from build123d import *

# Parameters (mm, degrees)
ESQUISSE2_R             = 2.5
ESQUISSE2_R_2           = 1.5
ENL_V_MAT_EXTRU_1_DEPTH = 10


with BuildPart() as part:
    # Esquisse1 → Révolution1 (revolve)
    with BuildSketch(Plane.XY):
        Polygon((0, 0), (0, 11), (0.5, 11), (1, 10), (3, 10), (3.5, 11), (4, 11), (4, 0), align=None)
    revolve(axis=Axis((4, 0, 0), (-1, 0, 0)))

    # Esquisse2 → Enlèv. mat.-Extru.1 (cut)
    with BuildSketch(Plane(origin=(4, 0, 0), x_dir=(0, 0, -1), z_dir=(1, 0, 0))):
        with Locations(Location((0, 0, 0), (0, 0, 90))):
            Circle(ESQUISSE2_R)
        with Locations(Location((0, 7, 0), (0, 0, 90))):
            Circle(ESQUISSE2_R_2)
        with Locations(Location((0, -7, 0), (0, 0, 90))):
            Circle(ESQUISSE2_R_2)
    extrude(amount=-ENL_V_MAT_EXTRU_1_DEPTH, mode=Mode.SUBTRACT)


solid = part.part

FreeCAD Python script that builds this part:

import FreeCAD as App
import Part
import Sketcher

V = App.Vector


def add_polygon(sketch, points):
    """Adds a closed chain of lines whose ends are joined by coincident constraints."""
    first, n = sketch.GeometryCount, len(points)
    for a, b in zip(points, points[1:] + points[:1]):
        sketch.addGeometry(Part.LineSegment(App.Vector(*a, 0), App.Vector(*b, 0)), False)
    for i in range(n):
        sketch.addConstraint(Sketcher.Constraint("Coincident", first + i, 2, first + (i + 1) % n, 1))

doc = App.newDocument("Part")
body = doc.addObject("PartDesign::Body", "Body")

sketch1 = body.newObject("Sketcher::SketchObject", "Sketch")
sketch1.AttachmentSupport = (doc.getObject("XY_Plane"), [""])
sketch1.MapMode = "FlatFace"
add_polygon(sketch1, [(0, 11), (0, 0), (4, 0), (4, 11), (3.5, 11), (3, 10), (1, 10), (0.5, 11)])
sketch1.addConstraint([
    Sketcher.Constraint("Vertical", 0),
    Sketcher.Constraint("Horizontal", 1),
    Sketcher.Constraint("Vertical", 2),
    Sketcher.Constraint("Horizontal", 3),
    Sketcher.Constraint("Horizontal", 5),
    Sketcher.Constraint("Horizontal", 7),
    Sketcher.Constraint("Coincident", 0, 2, -1, 1),
    Sketcher.Constraint("Horizontal", 3, 2, 6, 2),
    Sketcher.Constraint("Equal", 3, 7),
    Sketcher.Constraint("Equal", 4, 6),
    Sketcher.Constraint("DistanceX", 1, 1, 1, 2, 4.0),
    Sketcher.Constraint("DistanceX", 5, 2, 5, 1, 2.0),
    Sketcher.Constraint("DistanceY", 0, 2, 0, 1, 11.0),
    Sketcher.Constraint("DistanceX", 3, 2, 3, 1, 0.5),
    Sketcher.Constraint("DistanceY", -1, 1, 4, 2, 10.0),
])
revolution = body.newObject("PartDesign::Revolution", "Revolution")
revolution.Profile = sketch1
revolution.ReferenceAxis = (sketch1, ["H_Axis"])
revolution.Angle = 360

sketch2 = body.newObject("Sketcher::SketchObject", "Sketch001")
sketch2.AttachmentSupport = (doc.getObject("YZ_Plane"), [""])
sketch2.MapMode = "FlatFace"
sketch2.AttachmentOffset = App.Placement(V(0, 0, 4), App.Rotation())
sketch2.addGeometry([
    Part.Circle(V(0, 0, 0), V(0, 0, 1), 2.5),
    Part.Circle(V(7, 0, 0), V(0, 0, 1), 1.5),
    Part.Circle(V(-7, 0, 0), V(0, 0, 1), 1.5),
], False)
sketch2.addConstraint([
    Sketcher.Constraint("Coincident", 0, 3, -1, 1),
    Sketcher.Constraint("Equal", 1, 2),
    Sketcher.Constraint("Symmetric", 1, 3, 2, 3, -1, 1),
    Sketcher.Constraint("PointOnObject", 1, 3, -1),
    Sketcher.Constraint("Diameter", 0, 5.0),
    Sketcher.Constraint("Diameter", 1, 3.0),
    Sketcher.Constraint("DistanceX", -1, 1, 1, 3, 7.0),
])
pocket1 = body.newObject("PartDesign::Pocket", "Pocket")
pocket1.Profile = sketch2
pocket1.Length = 10

doc.recompute()
